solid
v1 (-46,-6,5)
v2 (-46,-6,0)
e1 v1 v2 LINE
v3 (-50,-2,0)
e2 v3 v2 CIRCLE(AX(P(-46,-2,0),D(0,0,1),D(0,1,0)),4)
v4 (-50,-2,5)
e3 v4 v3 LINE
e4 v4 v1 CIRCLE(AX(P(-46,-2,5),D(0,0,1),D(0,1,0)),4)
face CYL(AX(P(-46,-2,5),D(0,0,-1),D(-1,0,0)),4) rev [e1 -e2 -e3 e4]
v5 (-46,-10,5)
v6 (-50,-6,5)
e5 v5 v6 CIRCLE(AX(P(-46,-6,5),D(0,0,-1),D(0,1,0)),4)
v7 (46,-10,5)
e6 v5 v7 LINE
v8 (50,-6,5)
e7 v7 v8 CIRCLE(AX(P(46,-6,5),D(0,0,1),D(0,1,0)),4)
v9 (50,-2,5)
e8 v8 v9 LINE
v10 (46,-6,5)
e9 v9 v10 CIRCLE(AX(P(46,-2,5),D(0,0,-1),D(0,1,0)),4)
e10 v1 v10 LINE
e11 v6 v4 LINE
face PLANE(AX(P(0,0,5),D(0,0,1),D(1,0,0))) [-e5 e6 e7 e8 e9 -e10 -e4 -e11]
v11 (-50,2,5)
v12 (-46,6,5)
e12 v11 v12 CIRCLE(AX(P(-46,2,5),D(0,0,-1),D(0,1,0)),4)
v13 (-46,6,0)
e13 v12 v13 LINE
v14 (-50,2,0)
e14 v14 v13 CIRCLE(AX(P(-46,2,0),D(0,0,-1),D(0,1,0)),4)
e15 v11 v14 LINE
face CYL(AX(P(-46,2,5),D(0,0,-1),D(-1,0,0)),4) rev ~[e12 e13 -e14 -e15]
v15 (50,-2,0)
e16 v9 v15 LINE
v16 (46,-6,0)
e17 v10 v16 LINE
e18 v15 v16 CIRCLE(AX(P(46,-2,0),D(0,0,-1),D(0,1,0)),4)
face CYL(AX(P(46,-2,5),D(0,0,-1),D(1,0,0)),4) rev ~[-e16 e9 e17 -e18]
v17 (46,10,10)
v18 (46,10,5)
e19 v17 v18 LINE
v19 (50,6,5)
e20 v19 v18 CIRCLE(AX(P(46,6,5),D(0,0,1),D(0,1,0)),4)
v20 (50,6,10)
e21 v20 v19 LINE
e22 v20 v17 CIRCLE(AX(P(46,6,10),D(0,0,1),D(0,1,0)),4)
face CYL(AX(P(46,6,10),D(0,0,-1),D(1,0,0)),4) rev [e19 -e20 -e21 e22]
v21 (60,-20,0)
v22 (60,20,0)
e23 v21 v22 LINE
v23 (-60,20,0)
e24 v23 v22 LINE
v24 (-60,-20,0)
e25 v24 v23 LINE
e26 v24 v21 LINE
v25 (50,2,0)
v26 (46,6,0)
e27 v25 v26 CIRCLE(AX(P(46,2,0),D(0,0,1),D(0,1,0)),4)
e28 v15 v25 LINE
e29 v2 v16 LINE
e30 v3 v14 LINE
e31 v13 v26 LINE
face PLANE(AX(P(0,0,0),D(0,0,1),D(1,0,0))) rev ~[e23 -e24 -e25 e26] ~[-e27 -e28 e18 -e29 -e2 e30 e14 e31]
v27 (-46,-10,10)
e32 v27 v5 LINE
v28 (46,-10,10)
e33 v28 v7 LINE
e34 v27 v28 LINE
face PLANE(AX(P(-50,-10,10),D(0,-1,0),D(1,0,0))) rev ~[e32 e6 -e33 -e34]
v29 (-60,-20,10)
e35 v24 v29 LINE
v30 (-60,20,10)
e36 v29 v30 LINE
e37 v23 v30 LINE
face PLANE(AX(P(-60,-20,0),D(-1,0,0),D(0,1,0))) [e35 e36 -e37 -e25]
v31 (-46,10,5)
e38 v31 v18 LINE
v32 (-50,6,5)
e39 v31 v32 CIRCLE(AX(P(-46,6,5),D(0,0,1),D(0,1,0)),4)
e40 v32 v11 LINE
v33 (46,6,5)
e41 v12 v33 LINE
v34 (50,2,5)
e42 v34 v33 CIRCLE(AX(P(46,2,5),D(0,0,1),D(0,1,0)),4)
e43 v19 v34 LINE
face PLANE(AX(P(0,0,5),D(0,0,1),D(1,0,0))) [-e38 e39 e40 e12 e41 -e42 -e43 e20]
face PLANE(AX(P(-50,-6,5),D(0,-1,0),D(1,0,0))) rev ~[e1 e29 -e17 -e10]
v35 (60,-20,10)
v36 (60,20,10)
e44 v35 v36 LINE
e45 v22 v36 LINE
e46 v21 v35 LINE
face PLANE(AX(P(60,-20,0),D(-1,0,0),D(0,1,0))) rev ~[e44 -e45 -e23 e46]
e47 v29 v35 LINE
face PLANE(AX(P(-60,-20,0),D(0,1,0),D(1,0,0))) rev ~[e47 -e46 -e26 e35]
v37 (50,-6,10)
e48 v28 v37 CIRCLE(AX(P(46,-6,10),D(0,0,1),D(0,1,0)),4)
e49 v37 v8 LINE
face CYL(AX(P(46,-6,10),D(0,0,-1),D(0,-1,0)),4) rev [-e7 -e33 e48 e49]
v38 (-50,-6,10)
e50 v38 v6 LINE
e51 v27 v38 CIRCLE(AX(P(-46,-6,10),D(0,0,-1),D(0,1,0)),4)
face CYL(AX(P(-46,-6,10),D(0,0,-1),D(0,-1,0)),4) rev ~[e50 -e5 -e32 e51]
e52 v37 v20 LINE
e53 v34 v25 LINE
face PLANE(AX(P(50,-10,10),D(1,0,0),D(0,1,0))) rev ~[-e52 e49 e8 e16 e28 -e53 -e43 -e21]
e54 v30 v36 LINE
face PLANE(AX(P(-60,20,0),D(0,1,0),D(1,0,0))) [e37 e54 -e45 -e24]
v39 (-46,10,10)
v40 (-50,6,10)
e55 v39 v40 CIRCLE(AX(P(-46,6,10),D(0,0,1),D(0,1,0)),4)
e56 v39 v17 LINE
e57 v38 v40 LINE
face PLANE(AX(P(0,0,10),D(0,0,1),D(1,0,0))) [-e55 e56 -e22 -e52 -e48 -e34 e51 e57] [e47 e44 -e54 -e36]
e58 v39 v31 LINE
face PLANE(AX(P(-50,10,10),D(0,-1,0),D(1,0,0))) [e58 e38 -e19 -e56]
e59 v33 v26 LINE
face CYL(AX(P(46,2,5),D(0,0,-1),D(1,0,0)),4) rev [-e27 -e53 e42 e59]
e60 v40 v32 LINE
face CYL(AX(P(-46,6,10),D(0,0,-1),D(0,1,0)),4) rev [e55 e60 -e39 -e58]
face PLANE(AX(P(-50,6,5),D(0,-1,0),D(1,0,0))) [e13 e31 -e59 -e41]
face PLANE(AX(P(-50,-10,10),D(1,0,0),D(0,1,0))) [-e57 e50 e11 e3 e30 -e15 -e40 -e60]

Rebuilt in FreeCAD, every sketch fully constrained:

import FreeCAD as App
import Part
import Sketcher

V = App.Vector


def edges_at(feature, points):
    """Names of the edges that pass closest to the given points."""
    edges = feature.Shape.Edges
    near = lambda p: min(range(len(edges)), key=lambda i: edges[i].distToShape(Part.Vertex(*p))[0])
    return sorted({f"Edge{near(p) + 1}" for p in points})

doc = App.newDocument("Part")
body = doc.addObject("PartDesign::Body", "Body")

sketch1 = body.newObject("Sketcher::SketchObject", "Sketch")
sketch1.AttachmentSupport = (doc.getObject("XY_Plane"), [""])
sketch1.MapMode = "FlatFace"
sketch1.addGeometry(Part.LineSegment(V(-60, 20, 0), V(-60, -20, 0)), False)
sketch1.addGeometry(Part.LineSegment(V(-60, -20, 0), V(60, -20, 0)), False)
sketch1.addGeometry(Part.LineSegment(V(60, -20, 0), V(60, 20, 0)), False)
sketch1.addGeometry(Part.LineSegment(V(60, 20, 0), V(-60, 20, 0)), False)
sketch1.addConstraint(Sketcher.Constraint("Coincident", 0, 2, 1, 1))
sketch1.addConstraint(Sketcher.Constraint("Coincident", 1, 2, 2, 1))
sketch1.addConstraint(Sketcher.Constraint("Coincident", 2, 2, 3, 1))
sketch1.addConstraint(Sketcher.Constraint("Coincident", 3, 2, 0, 1))
sketch1.addConstraint(Sketcher.Constraint("Vertical", 0))
sketch1.addConstraint(Sketcher.Constraint("Horizontal", 1))
sketch1.addConstraint(Sketcher.Constraint("Vertical", 2))
sketch1.addConstraint(Sketcher.Constraint("Horizontal", 3))
sketch1.addConstraint(Sketcher.Constraint("Symmetric", 0, 2, 2, 2, -1, 1))
sketch1.addConstraint(Sketcher.Constraint("DistanceX", 1, 1, 1, 2, 120.0))
sketch1.addConstraint(Sketcher.Constraint("DistanceY", 0, 2, 0, 1, 40.0))
pad1 = body.newObject("PartDesign::Pad", "Pad")
pad1.Profile = sketch1
pad1.Length = 10

sketch2 = body.newObject("Sketcher::SketchObject", "Sketch001")
sketch2.AttachmentSupport = (doc.getObject("XY_Plane"), [""])
sketch2.MapMode = "FlatFace"
sketch2.AttachmentOffset = App.Placement(V(0, 0, 10), App.Rotation())
sketch2.addGeometry(Part.LineSegment(V(-50, 10, 0), V(-50, -10, 0)), False)
sketch2.addGeometry(Part.LineSegment(V(-50, -10, 0), V(50, -10, 0)), False)
sketch2.addGeometry(Part.LineSegment(V(50, -10, 0), V(50, 10, 0)), False)
sketch2.addGeometry(Part.LineSegment(V(50, 10, 0), V(-50, 10, 0)), False)
sketch2.addConstraint(Sketcher.Constraint("Coincident", 0, 2, 1, 1))
sketch2.addConstraint(Sketcher.Constraint("Coincident", 1, 2, 2, 1))
sketch2.addConstraint(Sketcher.Constraint("Coincident", 2, 2, 3, 1))
sketch2.addConstraint(Sketcher.Constraint("Coincident", 3, 2, 0, 1))
sketch2.addConstraint(Sketcher.Constraint("Vertical", 0))
sketch2.addConstraint(Sketcher.Constraint("Horizontal", 1))
sketch2.addConstraint(Sketcher.Constraint("Vertical", 2))
sketch2.addConstraint(Sketcher.Constraint("Horizontal", 3))
sketch2.addConstraint(Sketcher.Constraint("Symmetric", 0, 2, 2, 2, -1, 1))
sketch2.addConstraint(Sketcher.Constraint("DistanceX", 1, 1, 1, 2, 100.0))
sketch2.addConstraint(Sketcher.Constraint("DistanceY", 0, 2, 0, 1, 20.0))
pocket1 = body.newObject("PartDesign::Pocket", "Pocket")
pocket1.Profile = sketch2
pocket1.Length = 5
doc.recompute()

fillet = body.newObject("PartDesign::Fillet", "Fillet")
fillet.Base = (pocket1, edges_at(pocket1, [
    (-50, 10, 7.5),
    (50, 10, 7.5),
    (50, -10, 7.5),
    (-50, -10, 7.5),
]))
fillet.Radius = 4

sketch3 = body.newObject("Sketcher::SketchObject", "Sketch002")
sketch3.AttachmentSupport = (doc.getObject("XY_Plane"), [""])
sketch3.MapMode = "FlatFace"
sketch3.AttachmentOffset = App.Placement(V(0, 0, 5), App.Rotation())
sketch3.addGeometry(Part.LineSegment(V(-50, 6, 0), V(-50, -6, 0)), False)
sketch3.addGeometry(Part.LineSegment(V(-50, -6, 0), V(50, -6, 0)), False)
sketch3.addGeometry(Part.LineSegment(V(50, -6, 0), V(50, 6, 0)), False)
sketch3.addGeometry(Part.LineSegment(V(50, 6, 0), V(-50, 6, 0)), False)
sketch3.addConstraint(Sketcher.Constraint("Coincident", 0, 2, 1, 1))
sketch3.addConstraint(Sketcher.Constraint("Coincident", 1, 2, 2, 1))
sketch3.addConstraint(Sketcher.Constraint("Coincident", 2, 2, 3, 1))
sketch3.addConstraint(Sketcher.Constraint("Coincident", 3, 2, 0, 1))
sketch3.addConstraint(Sketcher.Constraint("Vertical", 0))
sketch3.addConstraint(Sketcher.Constraint("Horizontal", 1))
sketch3.addConstraint(Sketcher.Constraint("Vertical", 2))
sketch3.addConstraint(Sketcher.Constraint("Horizontal", 3))
sketch3.addConstraint(Sketcher.Constraint("Symmetric", 0, 2, 2, 2, -1, 1))
sketch3.addConstraint(Sketcher.Constraint("DistanceX", 1, 1, 1, 2, 100.0))
sketch3.addConstraint(Sketcher.Constraint("DistanceY", 0, 2, 0, 1, 12.0))
pocket2 = body.newObject("PartDesign::Pocket", "Pocket001")
pocket2.Profile = sketch3
pocket2.Type = "ThroughAll"
doc.recompute()

fillet2 = body.newObject("PartDesign::Fillet", "Fillet001")
fillet2.Base = (pocket2, edges_at(pocket2, [
    (-50, 6, 2.5),
    (-50, -6, 2.5),
    (50, -6, 2.5),
    (50, 6, 2.5),
]))
fillet2.Radius = 4

doc.recompute()
